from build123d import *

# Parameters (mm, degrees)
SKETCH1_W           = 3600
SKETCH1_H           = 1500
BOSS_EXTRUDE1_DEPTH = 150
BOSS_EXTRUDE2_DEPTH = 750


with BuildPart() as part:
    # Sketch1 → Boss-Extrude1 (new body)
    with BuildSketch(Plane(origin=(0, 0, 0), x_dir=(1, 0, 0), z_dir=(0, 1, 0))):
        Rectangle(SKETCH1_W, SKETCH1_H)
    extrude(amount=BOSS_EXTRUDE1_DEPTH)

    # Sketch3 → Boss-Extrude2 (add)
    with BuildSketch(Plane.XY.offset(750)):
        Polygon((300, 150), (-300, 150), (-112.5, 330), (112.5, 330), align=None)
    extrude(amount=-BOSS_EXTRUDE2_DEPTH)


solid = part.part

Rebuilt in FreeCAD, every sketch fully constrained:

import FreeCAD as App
import Part
import Sketcher
Q = App.Units.Quantity

doc = App.newDocument("Part")
body = doc.addObject("PartDesign::Body", "Body")

sketch1 = body.newObject("Sketcher::SketchObject", "Sketch")
sketch1.AttachmentSupport = (doc.getObject("XZ_Plane"), [""])
sketch1.MapMode = "FlatFace"
sketch1.addGeometry(Part.LineSegment(App.Vector(-1800, -750, 0), App.Vector(-1800, 750, 0)), False)
sketch1.addGeometry(Part.LineSegment(App.Vector(-1800, 750, 0), App.Vector(1800, 750, 0)), False)
sketch1.addGeometry(Part.LineSegment(App.Vector(1800, 750, 0), App.Vector(1800, -750, 0)), False)
sketch1.addGeometry(Part.LineSegment(App.Vector(1800, -750, 0), App.Vector(-1800, -750, 0)), False)
sketch1.addConstraint(Sketcher.Constraint("Coincident", 0, 2, 1, 1))
sketch1.addConstraint(Sketcher.Constraint("Coincident", 1, 2, 2, 1))
sketch1.addConstraint(Sketcher.Constraint("Coincident", 2, 2, 3, 1))
sketch1.addConstraint(Sketcher.Constraint("Coincident", 3, 2, 0, 1))
sketch1.addConstraint(Sketcher.Constraint("Vertical", 0))
sketch1.addConstraint(Sketcher.Constraint("Horizontal", 1))
sketch1.addConstraint(Sketcher.Constraint("Vertical", 2))
sketch1.addConstraint(Sketcher.Constraint("Horizontal", 3))
sketch1.addConstraint(Sketcher.Constraint("Symmetric", 0, 2, 2, 2, -1, 1))
sketch1.addConstraint(Sketcher.Constraint("DistanceX", 1, 1, 1, 2, Q("3600 mm")))
sketch1.addConstraint(Sketcher.Constraint("DistanceY", 0, 1, 0, 2, Q("1500 mm")))
pad1 = body.newObject("PartDesign::Pad", "Pad")
pad1.Profile = sketch1
pad1.Length = 150
pad1.Reversed = True

sketch2 = body.newObject("Sketcher::SketchObject", "Sketch001")
sketch2.AttachmentSupport = (doc.getObject("XY_Plane"), [""])
sketch2.MapMode = "FlatFace"
sketch2.AttachmentOffset = App.Placement(App.Vector(0, 0, 750), App.Rotation())
sketch2.addGeometry(Part.LineSegment(App.Vector(-300, 150, 0), App.Vector(300, 150, 0)), False)
sketch2.addGeometry(Part.LineSegment(App.Vector(300, 150, 0), App.Vector(112, 330, 0)), False)
sketch2.addGeometry(Part.LineSegment(App.Vector(112, 330, 0), App.Vector(-112, 330, 0)), False)
sketch2.addGeometry(Part.LineSegment(App.Vector(-112, 330, 0), App.Vector(-300, 150, 0)), False)
sketch2.addConstraint(Sketcher.Constraint("Coincident", 0, 2, 1, 1))
sketch2.addConstraint(Sketcher.Constraint("Coincident", 1, 2, 2, 1))
sketch2.addConstraint(Sketcher.Constraint("Coincident", 2, 2, 3, 1))
sketch2.addConstraint(Sketcher.Constraint("Coincident", 3, 2, 0, 1))
sketch2.addConstraint(Sketcher.Constraint("Horizontal", 0))
sketch2.addConstraint(Sketcher.Constraint("Horizontal", 2))
sketch2.addConstraint(Sketcher.Constraint("Equal", 1, 3))
sketch2.addConstraint(Sketcher.Constraint("DistanceX", 0, 1, 0, 2, Q("600 mm")))
sketch2.addConstraint(Sketcher.Constraint("DistanceX", 2, 2, 2, 1, Q("225 mm")))
sketch2.addConstraint(Sketcher.Constraint("DistanceX", -1, 1, 0, 2, Q("300 mm")))
sketch2.addConstraint(Sketcher.Constraint("DistanceY", -1, 1, 0, 2, Q("150 mm")))
sketch2.addConstraint(Sketcher.Constraint("DistanceY", -1, 1, 1, 2, Q("330 mm")))
pad2 = body.newObject("PartDesign::Pad", "Pad001")
pad2.Profile = sketch2
pad2.Length = 750
pad2.Reversed = True

doc.recompute()
